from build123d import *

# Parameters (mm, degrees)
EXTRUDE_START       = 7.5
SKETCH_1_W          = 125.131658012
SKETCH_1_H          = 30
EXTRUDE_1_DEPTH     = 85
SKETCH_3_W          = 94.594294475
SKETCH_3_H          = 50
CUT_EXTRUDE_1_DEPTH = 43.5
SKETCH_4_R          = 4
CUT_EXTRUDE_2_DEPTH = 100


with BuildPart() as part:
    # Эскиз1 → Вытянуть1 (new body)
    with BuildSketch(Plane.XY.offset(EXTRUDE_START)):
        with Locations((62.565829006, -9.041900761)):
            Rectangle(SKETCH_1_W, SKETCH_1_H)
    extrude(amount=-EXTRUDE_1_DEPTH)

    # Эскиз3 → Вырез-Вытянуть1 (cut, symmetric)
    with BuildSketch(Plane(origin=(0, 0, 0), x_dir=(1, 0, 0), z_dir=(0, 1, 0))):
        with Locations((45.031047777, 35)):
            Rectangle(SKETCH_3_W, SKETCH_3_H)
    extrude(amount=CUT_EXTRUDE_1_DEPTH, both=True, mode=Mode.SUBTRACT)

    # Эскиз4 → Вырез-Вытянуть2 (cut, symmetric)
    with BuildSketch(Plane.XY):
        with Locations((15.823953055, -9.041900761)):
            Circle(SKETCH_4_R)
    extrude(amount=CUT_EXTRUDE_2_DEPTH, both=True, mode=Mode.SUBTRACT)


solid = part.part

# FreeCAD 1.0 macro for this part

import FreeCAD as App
import Part
import Sketcher

V = App.Vector
Q = App.Units.Quantity

doc = App.newDocument("Part")
body = doc.addObject("PartDesign::Body", "Body")

sketch1 = body.newObject("Sketcher::SketchObject", "Sketch")
sketch1.AttachmentSupport = (doc.getObject("XY_Plane"), [""])
sketch1.MapMode = "FlatFace"
sketch1.AttachmentOffset = App.Placement(V(0, 0, 7.5), App.Rotation())
sketch1.addGeometry(Part.LineSegment(V(0, 6, 0), V(0, -24, 0)), False)
sketch1.addGeometry(Part.LineSegment(V(0, -24, 0), V(125, -24, 0)), False)
sketch1.addGeometry(Part.LineSegment(V(125, -24, 0), V(125, 6, 0)), False)
sketch1.addGeometry(Part.LineSegment(V(125, 6, 0), V(0, 6, 0)), False)
sketch1.addConstraint(Sketcher.Constraint("Coincident", 0, 2, 1, 1))
sketch1.addConstraint(Sketcher.Constraint("Coincident", 1, 2, 2, 1))
sketch1.addConstraint(Sketcher.Constraint("Coincident", 2, 2, 3, 1))
sketch1.addConstraint(Sketcher.Constraint("Coincident", 3, 2, 0, 1))
sketch1.addConstraint(Sketcher.Constraint("Vertical", 0))
sketch1.addConstraint(Sketcher.Constraint("Horizontal", 1))
sketch1.addConstraint(Sketcher.Constraint("Vertical", 2))
sketch1.addConstraint(Sketcher.Constraint("Horizontal", 3))
sketch1.addConstraint(Sketcher.Constraint("PointOnObject", 0, 2, -2))
sketch1.addConstraint(Sketcher.Constraint("DistanceY", 0, 2, 0, 1, Q("30 mm")))
sketch1.addConstraint(Sketcher.Constraint("DistanceX", 1, 1, 1, 2, Q("125.131658 mm")))
sketch1.addConstraint(Sketcher.Constraint("DistanceY", 0, 2, -1, 1, Q("24.041901 mm")))
pad1 = body.newObject("PartDesign::Pad", "Pad")
pad1.Profile = sketch1
pad1.Length = 85
pad1.Reversed = True

sketch2 = body.newObject("Sketcher::SketchObject", "Sketch001")
sketch2.AttachmentSupport = (doc.getObject("XZ_Plane"), [""])
sketch2.MapMode = "FlatFace"
sketch2.addGeometry(Part.LineSegment(V(-2, -60, 0), V(-2, -10, 0)), False)
sketch2.addGeometry(Part.LineSegment(V(-2, -10, 0), V(92, -10, 0)), False)
sketch2.addGeometry(Part.LineSegment(V(92, -10, 0), V(92, -60, 0)), False)
sketch2.addGeometry(Part.LineSegment(V(92, -60, 0), V(-2, -60, 0)), False)
sketch2.addConstraint(Sketcher.Constraint("Coincident", 0, 2, 1, 1))
sketch2.addConstraint(Sketcher.Constraint("Coincident", 1, 2, 2, 1))
sketch2.addConstraint(Sketcher.Constraint("Coincident", 2, 2, 3, 1))
sketch2.addConstraint(Sketcher.Constraint("Coincident", 3, 2, 0, 1))
sketch2.addConstraint(Sketcher.Constraint("Vertical", 0))
sketch2.addConstraint(Sketcher.Constraint("Horizontal", 1))
sketch2.addConstraint(Sketcher.Constraint("Vertical", 2))
sketch2.addConstraint(Sketcher.Constraint("Horizontal", 3))
sketch2.addConstraint(Sketcher.Constraint("DistanceY", 0, 1, 0, 2, Q("50 mm")))
sketch2.addConstraint(Sketcher.Constraint("DistanceY", 0, 2, -1, 1, Q("10 mm")))
sketch2.addConstraint(Sketcher.Constraint("DistanceX", 0, 2, -1, 1, Q("2.266099 mm")))
sketch2.addConstraint(Sketcher.Constraint("DistanceX", 1, 1, 1, 2, Q("94.594294 mm")))
pocket1 = body.newObject("PartDesign::Pocket", "Pocket")
pocket1.Profile = sketch2
pocket1.Length = 87
pocket1.Midplane = True

sketch3 = body.newObject("Sketcher::SketchObject", "Sketch002")
sketch3.AttachmentSupport = (doc.getObject("XY_Plane"), [""])
sketch3.MapMode = "FlatFace"
sketch3.addGeometry(Part.Circle(V(15.8, -9, 0), V(0, 0, 1), 4), False)
sketch3.addConstraint(Sketcher.Constraint("Diameter", 0, Q("8 mm")))
sketch3.addConstraint(Sketcher.Constraint("DistanceY", 0, 3, -1, 1, Q("9.041901 mm")))
sketch3.addConstraint(Sketcher.Constraint("DistanceX", -1, 1, 0, 3, Q("15.823953 mm")))
pocket2 = body.newObject("PartDesign::Pocket", "Pocket001")
pocket2.Profile = sketch3
pocket2.Length = 200
pocket2.Midplane = True

doc.recompute()
